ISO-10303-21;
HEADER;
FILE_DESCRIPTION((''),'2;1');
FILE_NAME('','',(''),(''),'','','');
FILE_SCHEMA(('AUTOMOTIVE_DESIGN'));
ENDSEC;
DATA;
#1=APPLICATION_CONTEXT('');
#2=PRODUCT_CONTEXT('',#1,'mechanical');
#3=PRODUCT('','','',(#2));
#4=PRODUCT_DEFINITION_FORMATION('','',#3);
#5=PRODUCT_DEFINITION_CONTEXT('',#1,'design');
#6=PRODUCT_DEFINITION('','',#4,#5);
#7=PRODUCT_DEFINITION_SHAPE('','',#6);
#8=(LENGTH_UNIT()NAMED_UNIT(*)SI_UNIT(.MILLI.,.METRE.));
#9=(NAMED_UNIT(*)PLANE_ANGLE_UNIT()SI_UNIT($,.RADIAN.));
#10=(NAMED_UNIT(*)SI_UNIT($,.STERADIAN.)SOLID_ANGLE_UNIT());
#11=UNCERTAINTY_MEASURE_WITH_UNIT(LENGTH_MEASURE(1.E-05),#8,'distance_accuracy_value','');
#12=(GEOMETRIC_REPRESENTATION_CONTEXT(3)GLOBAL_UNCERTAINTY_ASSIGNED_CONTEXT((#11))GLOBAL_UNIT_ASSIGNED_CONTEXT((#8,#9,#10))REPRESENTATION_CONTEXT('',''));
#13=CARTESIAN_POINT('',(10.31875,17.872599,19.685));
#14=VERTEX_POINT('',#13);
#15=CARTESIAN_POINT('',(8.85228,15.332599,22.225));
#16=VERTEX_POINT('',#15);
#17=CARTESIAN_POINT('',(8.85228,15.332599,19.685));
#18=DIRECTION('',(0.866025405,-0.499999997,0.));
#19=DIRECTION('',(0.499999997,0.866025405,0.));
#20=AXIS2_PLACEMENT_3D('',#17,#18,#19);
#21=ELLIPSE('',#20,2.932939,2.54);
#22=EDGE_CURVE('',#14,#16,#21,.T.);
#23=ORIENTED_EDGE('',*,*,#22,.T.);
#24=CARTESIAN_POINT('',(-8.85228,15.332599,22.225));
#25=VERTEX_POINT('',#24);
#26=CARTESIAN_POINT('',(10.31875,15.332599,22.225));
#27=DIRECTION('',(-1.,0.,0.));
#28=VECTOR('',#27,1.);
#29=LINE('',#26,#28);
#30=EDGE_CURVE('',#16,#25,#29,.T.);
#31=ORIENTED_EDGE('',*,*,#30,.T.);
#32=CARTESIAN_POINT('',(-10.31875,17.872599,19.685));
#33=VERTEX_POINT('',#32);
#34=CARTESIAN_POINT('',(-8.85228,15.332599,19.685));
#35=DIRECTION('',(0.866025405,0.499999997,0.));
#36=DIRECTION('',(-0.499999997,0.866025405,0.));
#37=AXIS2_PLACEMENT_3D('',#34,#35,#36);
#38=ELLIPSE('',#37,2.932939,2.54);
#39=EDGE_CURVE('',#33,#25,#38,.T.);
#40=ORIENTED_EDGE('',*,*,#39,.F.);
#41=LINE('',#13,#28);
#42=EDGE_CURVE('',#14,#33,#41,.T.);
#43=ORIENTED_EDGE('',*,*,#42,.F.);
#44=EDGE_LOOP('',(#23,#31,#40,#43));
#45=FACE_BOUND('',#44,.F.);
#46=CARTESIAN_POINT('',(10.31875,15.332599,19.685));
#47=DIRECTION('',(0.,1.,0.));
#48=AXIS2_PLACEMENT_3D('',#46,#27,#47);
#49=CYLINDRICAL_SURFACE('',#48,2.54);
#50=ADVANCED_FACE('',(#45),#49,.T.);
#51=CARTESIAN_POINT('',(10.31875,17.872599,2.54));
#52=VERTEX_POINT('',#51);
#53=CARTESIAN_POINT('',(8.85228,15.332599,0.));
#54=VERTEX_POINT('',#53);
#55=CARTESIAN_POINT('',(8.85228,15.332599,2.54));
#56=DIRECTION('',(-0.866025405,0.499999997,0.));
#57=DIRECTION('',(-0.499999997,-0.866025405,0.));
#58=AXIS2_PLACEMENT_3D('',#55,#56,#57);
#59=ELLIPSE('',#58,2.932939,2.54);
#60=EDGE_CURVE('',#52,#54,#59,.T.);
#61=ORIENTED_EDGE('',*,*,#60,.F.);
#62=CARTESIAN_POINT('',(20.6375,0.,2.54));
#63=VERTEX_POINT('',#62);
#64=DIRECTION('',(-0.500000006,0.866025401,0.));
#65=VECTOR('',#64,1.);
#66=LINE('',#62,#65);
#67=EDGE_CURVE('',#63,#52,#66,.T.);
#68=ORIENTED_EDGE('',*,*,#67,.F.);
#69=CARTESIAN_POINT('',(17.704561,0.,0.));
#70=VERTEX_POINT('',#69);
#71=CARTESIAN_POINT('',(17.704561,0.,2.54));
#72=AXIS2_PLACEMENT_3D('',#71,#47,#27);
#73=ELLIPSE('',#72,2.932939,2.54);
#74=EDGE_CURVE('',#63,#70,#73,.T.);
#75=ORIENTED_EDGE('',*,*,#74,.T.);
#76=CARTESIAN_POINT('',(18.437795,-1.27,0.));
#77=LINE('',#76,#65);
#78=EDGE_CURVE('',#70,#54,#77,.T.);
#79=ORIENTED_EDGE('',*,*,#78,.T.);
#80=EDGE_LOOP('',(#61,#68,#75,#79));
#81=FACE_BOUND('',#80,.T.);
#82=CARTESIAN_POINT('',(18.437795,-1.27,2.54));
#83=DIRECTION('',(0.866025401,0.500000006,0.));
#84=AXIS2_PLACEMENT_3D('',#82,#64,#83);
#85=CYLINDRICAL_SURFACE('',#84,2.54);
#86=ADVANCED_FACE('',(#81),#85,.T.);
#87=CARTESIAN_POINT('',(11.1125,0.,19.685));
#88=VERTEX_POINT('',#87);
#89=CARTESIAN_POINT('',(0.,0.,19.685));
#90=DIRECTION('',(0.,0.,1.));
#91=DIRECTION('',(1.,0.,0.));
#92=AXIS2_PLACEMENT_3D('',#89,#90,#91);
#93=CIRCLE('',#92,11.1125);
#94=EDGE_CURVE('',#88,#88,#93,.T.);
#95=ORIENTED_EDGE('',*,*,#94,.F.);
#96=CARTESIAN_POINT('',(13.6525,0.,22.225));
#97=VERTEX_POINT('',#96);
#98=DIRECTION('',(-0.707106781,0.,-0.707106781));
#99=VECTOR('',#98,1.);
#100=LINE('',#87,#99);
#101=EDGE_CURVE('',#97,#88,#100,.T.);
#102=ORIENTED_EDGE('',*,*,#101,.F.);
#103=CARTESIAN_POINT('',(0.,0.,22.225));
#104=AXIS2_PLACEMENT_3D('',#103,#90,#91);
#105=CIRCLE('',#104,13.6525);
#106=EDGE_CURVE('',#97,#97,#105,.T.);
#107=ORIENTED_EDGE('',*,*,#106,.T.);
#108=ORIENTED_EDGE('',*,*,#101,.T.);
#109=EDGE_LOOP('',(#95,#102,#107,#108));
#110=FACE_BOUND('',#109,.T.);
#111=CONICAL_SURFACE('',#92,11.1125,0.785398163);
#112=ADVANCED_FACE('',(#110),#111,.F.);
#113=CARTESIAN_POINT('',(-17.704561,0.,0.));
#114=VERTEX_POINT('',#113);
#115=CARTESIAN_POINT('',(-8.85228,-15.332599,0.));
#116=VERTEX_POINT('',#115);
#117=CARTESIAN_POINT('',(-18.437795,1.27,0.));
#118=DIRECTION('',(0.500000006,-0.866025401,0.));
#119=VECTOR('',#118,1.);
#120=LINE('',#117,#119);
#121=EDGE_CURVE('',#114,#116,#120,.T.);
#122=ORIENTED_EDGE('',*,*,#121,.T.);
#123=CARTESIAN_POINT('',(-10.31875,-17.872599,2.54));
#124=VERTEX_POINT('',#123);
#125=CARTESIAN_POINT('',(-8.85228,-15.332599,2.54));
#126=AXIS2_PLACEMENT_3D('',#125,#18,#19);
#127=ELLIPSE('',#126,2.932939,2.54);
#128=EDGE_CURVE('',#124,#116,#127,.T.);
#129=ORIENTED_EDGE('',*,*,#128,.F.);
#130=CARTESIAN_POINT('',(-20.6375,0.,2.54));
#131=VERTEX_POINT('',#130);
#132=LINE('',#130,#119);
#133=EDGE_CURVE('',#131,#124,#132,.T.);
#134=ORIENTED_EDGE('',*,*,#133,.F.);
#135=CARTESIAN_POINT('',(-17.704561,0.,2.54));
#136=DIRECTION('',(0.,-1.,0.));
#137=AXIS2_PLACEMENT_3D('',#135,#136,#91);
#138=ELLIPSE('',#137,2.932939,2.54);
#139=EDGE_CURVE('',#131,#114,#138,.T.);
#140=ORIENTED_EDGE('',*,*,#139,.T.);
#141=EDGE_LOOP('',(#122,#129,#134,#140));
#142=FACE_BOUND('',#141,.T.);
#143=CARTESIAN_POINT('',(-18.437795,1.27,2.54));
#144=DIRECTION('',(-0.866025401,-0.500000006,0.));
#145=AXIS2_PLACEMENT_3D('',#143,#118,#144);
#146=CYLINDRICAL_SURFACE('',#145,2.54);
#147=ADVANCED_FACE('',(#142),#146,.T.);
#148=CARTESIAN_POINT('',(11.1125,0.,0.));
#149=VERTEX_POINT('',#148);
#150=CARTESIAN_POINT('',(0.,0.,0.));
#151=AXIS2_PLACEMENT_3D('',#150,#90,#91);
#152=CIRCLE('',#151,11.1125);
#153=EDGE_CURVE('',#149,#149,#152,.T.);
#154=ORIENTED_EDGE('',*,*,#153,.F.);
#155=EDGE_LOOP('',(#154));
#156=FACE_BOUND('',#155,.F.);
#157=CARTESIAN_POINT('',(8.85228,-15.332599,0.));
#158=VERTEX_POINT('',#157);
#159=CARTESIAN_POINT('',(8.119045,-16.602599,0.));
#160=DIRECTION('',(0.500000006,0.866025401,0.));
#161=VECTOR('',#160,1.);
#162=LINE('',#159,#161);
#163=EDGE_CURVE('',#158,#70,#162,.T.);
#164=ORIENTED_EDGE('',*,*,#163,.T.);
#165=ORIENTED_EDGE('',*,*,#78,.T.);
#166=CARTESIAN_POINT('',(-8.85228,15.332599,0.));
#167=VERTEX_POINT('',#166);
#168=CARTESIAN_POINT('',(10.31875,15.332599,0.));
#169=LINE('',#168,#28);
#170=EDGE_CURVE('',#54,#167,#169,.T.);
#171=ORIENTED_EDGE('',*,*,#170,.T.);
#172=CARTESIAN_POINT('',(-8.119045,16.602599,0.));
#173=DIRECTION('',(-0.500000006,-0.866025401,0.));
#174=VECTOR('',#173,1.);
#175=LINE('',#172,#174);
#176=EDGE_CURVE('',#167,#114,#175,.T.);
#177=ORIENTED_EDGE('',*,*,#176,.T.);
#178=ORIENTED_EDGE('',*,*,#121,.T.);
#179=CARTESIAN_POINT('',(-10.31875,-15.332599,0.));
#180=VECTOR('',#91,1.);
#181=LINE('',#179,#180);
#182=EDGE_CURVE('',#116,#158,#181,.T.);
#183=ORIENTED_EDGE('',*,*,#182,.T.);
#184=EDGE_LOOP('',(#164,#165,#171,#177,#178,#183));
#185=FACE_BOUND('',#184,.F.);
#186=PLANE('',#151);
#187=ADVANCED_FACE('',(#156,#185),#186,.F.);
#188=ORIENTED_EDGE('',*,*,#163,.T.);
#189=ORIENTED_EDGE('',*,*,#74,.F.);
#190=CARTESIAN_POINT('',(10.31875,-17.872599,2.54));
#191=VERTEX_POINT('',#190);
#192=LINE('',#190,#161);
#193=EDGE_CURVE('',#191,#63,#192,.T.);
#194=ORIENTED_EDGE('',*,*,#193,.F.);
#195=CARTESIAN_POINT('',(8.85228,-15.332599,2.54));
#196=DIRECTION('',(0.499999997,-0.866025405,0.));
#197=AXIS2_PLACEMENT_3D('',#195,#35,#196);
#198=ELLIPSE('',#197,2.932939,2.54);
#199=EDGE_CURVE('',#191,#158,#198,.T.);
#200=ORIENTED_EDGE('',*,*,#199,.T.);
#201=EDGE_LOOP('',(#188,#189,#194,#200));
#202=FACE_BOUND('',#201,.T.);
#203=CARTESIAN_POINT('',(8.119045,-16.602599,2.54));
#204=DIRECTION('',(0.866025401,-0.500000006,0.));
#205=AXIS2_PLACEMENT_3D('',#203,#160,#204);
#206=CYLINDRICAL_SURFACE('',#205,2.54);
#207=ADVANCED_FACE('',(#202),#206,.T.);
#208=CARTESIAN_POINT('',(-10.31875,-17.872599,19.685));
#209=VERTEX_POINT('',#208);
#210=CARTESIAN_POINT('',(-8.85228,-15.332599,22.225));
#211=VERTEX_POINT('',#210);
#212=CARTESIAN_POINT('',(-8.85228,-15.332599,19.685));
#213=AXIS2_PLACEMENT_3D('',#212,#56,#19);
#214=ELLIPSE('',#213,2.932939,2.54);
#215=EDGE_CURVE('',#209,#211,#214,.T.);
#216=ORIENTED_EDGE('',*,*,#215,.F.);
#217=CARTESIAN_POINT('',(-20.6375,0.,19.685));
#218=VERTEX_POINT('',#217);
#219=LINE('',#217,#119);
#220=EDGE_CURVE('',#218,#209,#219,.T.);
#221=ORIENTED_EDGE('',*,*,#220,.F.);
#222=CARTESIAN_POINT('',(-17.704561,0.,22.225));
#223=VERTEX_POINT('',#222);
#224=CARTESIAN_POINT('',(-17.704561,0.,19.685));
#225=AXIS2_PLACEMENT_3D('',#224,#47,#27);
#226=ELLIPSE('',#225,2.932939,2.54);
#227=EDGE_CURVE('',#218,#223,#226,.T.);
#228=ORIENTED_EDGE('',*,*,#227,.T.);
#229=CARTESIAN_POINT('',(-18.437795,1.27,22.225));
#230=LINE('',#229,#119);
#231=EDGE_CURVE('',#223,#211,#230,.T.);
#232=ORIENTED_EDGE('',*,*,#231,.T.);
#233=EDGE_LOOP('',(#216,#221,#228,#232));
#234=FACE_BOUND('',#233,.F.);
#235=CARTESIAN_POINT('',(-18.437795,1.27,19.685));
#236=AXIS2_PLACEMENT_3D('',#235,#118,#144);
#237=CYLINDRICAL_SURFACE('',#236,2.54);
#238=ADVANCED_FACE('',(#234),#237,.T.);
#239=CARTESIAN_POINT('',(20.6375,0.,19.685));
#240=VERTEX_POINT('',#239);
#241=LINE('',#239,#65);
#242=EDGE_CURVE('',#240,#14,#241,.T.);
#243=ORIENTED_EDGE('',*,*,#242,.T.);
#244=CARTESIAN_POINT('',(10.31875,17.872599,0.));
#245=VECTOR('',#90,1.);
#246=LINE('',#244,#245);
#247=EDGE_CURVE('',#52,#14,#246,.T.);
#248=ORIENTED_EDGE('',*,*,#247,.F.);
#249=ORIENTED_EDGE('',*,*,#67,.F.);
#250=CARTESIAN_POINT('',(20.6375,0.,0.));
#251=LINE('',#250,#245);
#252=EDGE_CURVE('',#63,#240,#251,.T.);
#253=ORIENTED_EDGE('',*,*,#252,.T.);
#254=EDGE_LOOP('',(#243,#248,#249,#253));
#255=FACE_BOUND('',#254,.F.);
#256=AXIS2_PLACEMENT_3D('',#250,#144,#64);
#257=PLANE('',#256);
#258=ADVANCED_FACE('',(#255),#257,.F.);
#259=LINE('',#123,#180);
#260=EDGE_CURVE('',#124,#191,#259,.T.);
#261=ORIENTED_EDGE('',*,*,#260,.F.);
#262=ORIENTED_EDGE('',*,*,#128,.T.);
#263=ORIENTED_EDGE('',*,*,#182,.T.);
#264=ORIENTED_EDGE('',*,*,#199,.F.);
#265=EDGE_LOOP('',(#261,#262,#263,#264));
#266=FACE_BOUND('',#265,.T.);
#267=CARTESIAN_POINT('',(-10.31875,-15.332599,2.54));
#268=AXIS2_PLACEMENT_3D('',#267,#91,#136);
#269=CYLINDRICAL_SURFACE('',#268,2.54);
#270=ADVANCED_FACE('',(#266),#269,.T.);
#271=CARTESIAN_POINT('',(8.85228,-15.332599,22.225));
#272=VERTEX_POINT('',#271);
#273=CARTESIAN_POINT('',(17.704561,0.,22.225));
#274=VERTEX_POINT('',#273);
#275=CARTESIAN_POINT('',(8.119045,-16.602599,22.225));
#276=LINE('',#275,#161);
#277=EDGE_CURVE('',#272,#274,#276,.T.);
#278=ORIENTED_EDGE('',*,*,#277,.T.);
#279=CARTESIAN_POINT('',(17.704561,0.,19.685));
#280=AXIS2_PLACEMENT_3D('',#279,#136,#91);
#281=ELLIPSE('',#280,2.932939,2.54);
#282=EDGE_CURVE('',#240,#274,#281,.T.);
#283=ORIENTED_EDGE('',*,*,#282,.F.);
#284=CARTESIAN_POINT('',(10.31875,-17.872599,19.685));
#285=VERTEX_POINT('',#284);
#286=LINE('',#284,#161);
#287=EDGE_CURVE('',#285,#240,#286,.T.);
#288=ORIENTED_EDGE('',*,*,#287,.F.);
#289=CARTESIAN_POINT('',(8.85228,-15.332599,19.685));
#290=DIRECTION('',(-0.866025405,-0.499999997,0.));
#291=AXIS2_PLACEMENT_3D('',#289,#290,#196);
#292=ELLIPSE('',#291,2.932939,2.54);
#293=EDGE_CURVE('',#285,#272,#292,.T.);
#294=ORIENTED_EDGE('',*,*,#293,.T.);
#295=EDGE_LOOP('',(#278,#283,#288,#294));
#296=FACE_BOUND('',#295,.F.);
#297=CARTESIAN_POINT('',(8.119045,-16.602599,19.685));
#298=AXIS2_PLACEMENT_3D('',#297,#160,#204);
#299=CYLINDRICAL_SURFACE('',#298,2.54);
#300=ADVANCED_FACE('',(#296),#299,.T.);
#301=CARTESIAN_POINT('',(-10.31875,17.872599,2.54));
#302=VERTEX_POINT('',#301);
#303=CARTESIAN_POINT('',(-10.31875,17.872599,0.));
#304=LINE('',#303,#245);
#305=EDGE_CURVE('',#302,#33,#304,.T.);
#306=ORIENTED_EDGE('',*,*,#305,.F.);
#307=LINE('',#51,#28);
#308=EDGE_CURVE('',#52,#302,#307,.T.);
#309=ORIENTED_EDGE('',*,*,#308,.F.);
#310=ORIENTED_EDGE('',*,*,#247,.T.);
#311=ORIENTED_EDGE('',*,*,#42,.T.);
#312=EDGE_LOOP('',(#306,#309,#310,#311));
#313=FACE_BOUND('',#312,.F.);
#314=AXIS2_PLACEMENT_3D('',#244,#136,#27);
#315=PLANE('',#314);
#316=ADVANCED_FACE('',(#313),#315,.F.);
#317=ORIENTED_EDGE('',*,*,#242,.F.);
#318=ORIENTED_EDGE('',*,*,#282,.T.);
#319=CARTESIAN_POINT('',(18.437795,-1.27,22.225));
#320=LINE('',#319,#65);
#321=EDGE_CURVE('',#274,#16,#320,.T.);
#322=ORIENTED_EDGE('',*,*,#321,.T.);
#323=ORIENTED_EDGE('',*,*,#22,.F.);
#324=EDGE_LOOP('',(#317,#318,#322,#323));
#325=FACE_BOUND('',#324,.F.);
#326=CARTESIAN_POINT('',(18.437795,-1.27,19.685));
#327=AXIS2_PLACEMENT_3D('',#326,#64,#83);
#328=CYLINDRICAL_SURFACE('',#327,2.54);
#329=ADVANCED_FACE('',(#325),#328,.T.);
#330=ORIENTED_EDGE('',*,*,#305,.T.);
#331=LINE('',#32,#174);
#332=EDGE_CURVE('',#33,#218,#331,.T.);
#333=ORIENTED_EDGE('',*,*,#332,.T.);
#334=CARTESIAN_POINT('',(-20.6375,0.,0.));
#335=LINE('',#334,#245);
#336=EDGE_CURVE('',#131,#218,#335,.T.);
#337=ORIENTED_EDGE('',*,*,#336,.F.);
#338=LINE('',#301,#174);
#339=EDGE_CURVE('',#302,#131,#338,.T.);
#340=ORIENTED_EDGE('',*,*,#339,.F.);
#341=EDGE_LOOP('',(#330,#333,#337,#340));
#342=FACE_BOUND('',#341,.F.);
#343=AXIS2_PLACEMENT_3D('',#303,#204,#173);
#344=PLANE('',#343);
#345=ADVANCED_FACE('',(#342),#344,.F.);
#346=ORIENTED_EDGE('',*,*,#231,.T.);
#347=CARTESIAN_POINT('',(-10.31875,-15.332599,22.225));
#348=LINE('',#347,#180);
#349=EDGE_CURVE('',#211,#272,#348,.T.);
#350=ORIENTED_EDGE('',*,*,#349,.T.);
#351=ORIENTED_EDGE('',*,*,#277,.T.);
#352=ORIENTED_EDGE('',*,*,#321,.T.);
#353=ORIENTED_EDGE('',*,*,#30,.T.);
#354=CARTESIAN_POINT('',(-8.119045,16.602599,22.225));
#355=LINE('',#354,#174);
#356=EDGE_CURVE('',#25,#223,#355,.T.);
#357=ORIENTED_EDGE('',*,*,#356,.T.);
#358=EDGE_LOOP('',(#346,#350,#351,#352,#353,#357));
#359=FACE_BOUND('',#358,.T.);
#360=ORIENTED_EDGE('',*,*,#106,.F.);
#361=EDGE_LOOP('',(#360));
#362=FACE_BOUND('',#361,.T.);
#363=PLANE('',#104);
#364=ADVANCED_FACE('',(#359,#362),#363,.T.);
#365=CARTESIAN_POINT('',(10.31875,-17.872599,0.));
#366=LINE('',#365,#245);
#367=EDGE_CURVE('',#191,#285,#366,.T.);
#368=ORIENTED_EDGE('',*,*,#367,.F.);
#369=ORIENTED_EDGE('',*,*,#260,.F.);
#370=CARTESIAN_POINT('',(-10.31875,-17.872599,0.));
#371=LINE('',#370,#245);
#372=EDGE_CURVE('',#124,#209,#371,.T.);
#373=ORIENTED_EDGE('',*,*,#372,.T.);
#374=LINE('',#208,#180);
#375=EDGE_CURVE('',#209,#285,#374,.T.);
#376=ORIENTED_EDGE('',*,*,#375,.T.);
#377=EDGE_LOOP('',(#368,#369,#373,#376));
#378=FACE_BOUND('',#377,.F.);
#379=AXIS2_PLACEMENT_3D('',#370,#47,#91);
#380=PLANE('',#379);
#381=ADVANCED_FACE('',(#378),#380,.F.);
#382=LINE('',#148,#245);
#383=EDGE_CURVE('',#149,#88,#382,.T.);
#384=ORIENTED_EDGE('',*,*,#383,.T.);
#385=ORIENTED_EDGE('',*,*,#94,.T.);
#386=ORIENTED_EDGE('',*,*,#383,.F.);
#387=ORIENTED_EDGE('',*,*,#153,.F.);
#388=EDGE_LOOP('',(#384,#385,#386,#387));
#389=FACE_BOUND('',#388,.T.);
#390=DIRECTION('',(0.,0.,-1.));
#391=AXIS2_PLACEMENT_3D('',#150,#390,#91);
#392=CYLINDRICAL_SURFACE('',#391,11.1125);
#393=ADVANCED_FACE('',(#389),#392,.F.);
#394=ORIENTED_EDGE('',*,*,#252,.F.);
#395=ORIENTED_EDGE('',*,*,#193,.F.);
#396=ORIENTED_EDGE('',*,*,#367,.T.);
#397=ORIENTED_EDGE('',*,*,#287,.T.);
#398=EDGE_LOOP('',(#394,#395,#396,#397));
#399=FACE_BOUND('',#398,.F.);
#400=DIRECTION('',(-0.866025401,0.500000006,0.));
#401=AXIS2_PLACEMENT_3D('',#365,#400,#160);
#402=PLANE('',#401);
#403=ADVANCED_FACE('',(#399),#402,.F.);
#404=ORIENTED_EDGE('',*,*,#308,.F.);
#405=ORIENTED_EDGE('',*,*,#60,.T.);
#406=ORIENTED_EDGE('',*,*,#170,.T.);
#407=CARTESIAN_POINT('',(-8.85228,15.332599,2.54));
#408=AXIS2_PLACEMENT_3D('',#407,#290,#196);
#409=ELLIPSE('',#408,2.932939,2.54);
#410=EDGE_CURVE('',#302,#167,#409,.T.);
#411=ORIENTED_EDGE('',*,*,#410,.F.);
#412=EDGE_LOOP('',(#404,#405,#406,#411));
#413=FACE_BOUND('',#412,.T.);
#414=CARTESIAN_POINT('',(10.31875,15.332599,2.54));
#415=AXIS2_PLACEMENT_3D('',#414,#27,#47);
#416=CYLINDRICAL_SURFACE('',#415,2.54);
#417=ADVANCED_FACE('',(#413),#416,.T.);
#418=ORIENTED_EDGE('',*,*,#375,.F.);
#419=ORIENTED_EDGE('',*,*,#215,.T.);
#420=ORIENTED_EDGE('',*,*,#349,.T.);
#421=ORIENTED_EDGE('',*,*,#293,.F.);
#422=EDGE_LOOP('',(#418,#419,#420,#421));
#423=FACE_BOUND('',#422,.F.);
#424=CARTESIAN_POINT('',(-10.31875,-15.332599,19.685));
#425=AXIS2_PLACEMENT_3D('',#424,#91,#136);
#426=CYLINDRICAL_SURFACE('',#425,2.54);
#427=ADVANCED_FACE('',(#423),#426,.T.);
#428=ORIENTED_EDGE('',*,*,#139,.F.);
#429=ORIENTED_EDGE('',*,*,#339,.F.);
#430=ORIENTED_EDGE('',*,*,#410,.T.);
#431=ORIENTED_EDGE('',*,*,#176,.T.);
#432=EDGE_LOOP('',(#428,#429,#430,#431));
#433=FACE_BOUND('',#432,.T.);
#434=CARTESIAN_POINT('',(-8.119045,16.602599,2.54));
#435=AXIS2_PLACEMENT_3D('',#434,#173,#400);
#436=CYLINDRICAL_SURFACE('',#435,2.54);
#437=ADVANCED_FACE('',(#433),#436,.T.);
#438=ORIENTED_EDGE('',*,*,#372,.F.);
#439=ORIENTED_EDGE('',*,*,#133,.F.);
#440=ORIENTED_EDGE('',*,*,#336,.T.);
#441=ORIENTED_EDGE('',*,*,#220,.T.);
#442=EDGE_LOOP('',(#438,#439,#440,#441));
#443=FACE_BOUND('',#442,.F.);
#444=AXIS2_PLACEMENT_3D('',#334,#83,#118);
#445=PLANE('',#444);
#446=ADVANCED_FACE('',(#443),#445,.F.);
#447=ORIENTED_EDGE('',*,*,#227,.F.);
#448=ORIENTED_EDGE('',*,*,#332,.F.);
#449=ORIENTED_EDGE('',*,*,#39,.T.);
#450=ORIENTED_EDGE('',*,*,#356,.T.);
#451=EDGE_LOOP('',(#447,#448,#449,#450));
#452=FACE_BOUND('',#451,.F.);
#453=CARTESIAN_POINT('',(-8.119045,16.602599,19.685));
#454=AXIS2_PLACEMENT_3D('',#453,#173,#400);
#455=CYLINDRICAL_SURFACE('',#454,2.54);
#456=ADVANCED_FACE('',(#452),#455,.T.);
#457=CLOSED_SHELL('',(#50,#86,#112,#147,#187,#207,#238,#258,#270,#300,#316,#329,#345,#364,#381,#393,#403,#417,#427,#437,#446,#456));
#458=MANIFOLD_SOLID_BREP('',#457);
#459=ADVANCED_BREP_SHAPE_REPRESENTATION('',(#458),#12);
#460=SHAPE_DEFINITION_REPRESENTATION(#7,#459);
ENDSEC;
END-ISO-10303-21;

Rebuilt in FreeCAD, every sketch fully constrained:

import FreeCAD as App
import Part
import Sketcher
Q = App.Units.Quantity


def edges_at(feature, points):
    """Names of the edges that pass closest to the given points."""
    edges = feature.Shape.Edges
    near = lambda p: min(range(len(edges)), key=lambda i: edges[i].distToShape(Part.Vertex(*p))[0])
    return sorted({f"Edge{near(p) + 1}" for p in points})


def add_polygon(sketch, points):
    """Adds a closed chain of lines whose ends are joined by coincident constraints."""
    first, n = sketch.GeometryCount, len(points)
    for a, b in zip(points, points[1:] + points[:1]):
        sketch.addGeometry(Part.LineSegment(App.Vector(*a, 0), App.Vector(*b, 0)), False)
    for i in range(n):
        sketch.addConstraint(Sketcher.Constraint("Coincident", first + i, 2, first + (i + 1) % n, 1))

doc = App.newDocument("Part")
params = doc.addObject("Spreadsheet::Sheet", "Params")
for row, (alias, value) in enumerate([
    ("sketch1_diameter", "0.875 in"),
    ("sketch1_width", "0.8125 in"),
    ("sketch1_length", "0.8125 in"),
    ("pad1_length", "0.875 in"),
    ("fillet_radius", "0.1 in"),
    ("chamfer_size", "0.1 in"),
], start=1):
    params.set(f"A{row}", alias)
    params.set(f"B{row}", "=" + value)
    params.setAlias(f"B{row}", alias)

body = doc.addObject("PartDesign::Body", "Body")

sketch1 = body.newObject("Sketcher::SketchObject", "Sketch")
sketch1.AttachmentSupport = (doc.getObject("XY_Plane"), [""])
sketch1.MapMode = "FlatFace"
add_polygon(sketch1, [(10.31875, -17.872599), (20.6375, 0), (10.31875, 17.872599), (-10.31875, 17.872599), (-20.6375, 0), (-10.31875, -17.872599)])
sketch1.addGeometry(Part.Circle(App.Vector(0, 0, 0), App.Vector(0, 0, 1), 11.1125), False)
sketch1.addConstraint(Sketcher.Constraint("Horizontal", 2))
sketch1.addConstraint(Sketcher.Constraint("Horizontal", 5))
sketch1.addConstraint(Sketcher.Constraint("Coincident", 6, 3, -1, 1))
sketch1.addConstraint(Sketcher.Constraint("Symmetric", 0, 2, 3, 2, -1, 1))
sketch1.addConstraint(Sketcher.Constraint("Symmetric", 1, 2, 4, 2, -1, 1))
sketch1.addConstraint(Sketcher.Constraint("PointOnObject", 0, 2, -1))
sketch1.addConstraint(Sketcher.Constraint("Parallel", 0, 3))
sketch1.addConstraint(Sketcher.Constraint("Vertical", 2, 2, 4, 2))
sketch1.addConstraint(Sketcher.Constraint("Diameter", 6, Q("0.875 in")))
sketch1.addConstraint(Sketcher.Constraint("Angle", 0, Q("60 deg")))
sketch1.addConstraint(Sketcher.Constraint("DistanceX", 2, 2, 2, 1, Q("0.8125 in")))
sketch1.addConstraint(Sketcher.Constraint("Distance", 0, Q("0.8125 in")))
sketch1.setExpression("Constraints[14]", "Params.sketch1_diameter")
sketch1.setExpression("Constraints[16]", "Params.sketch1_width")
sketch1.setExpression("Constraints[17]", "Params.sketch1_length")
pad1 = body.newObject("PartDesign::Pad", "Pad")
pad1.Profile = sketch1
pad1.setExpression("Length", "Params.pad1_length")
doc.recompute()

fillet = body.newObject("PartDesign::Fillet", "Fillet")
fillet.Base = (pad1, edges_at(pad1, [
    (0, -17.873, 22.225),
    (15.478, -8.936, 22.225),
    (15.478, 8.936, 22.225),
    (0, 17.873, 22.225),
    (-15.478, 8.936, 22.225),
    (-15.478, -8.936, 22.225),
    (0, -17.873, 0),
    (-15.478, -8.936, 0),
    (-15.478, 8.936, 0),
    (0, 17.873, 0),
    (15.478, 8.936, 0),
    (15.478, -8.936, 0),
]))
fillet.setExpression("Radius", "Params.fillet_radius")
doc.recompute()

chamfer = body.newObject("PartDesign::Chamfer", "Chamfer")
chamfer.Base = (fillet, edges_at(fillet, [(-11.113, 0, 22.225)]))
chamfer.setExpression("Size", "Params.chamfer_size")

doc.recompute()
